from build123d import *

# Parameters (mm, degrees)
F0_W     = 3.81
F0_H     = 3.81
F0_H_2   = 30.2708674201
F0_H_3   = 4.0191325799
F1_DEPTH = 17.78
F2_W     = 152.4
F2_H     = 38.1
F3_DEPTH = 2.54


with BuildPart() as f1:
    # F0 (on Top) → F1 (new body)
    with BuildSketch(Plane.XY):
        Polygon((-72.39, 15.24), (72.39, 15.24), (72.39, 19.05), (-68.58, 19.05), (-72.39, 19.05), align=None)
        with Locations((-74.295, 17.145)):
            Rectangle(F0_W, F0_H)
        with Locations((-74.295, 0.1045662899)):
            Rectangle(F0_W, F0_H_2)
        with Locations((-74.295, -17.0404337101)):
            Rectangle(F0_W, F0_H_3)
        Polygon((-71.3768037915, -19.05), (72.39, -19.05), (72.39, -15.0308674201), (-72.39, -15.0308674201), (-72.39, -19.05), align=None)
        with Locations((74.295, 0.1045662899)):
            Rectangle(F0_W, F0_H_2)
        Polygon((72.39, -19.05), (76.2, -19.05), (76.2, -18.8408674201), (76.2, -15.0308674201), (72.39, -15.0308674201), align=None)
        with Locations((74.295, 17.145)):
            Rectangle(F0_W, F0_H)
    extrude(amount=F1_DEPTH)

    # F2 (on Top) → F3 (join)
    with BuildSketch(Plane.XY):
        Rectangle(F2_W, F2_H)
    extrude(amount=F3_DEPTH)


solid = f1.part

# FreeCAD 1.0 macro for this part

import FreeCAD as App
import Part
import Sketcher

V = App.Vector
Q = App.Units.Quantity


def add_polygon(sketch, points):
    """Adds a closed chain of lines whose ends are joined by coincident constraints."""
    first, n = sketch.GeometryCount, len(points)
    for a, b in zip(points, points[1:] + points[:1]):
        sketch.addGeometry(Part.LineSegment(App.Vector(*a, 0), App.Vector(*b, 0)), False)
    for i in range(n):
        sketch.addConstraint(Sketcher.Constraint("Coincident", first + i, 2, first + (i + 1) % n, 1))

doc = App.newDocument("Part")
params = doc.addObject("Spreadsheet::Sheet", "Params")
for row, (alias, value) in enumerate([
    ("sketch1_width", "6 in"),
    ("sketch1_width2", "5.7 in"),
    ("sketch1_height", "1.5 in"),
    ("pad1_length", "0.7 in"),
    ("sketch2_width", "6 in"),
    ("sketch2_height", "1.5 in"),
    ("pad2_length", "0.1 in"),
], start=1):
    params.set(f"A{row}", alias)
    params.set(f"B{row}", "=" + value)
    params.setAlias(f"B{row}", alias)

body = doc.addObject("PartDesign::Body", "Body")

sketch1 = body.newObject("Sketcher::SketchObject", "Sketch")
sketch1.AttachmentSupport = (doc.getObject("XY_Plane"), [""])
sketch1.MapMode = "FlatFace"
add_polygon(sketch1, [(76, -19), (76, 19), (-76, 19), (-76, -19)])
add_polygon(sketch1, [(-72, 15), (72, 15), (72, -15), (-72, -15)])
sketch1.addConstraint([
    Sketcher.Constraint("Vertical", 0),
    Sketcher.Constraint("Horizontal", 1),
    Sketcher.Constraint("Vertical", 2),
    Sketcher.Constraint("Horizontal", 3),
    Sketcher.Constraint("Horizontal", 4),
    Sketcher.Constraint("Vertical", 5),
    Sketcher.Constraint("Horizontal", 6),
    Sketcher.Constraint("Vertical", 7),
    Sketcher.Constraint("Symmetric", 0, 2, 2, 2, -1, 1),
    Sketcher.Constraint("DistanceX", 1, 2, 1, 1, Q("6 in")),
    Sketcher.Constraint("DistanceX", 4, 1, 4, 2, Q("5.7 in")),
    Sketcher.Constraint("DistanceY", 0, 1, 0, 2, Q("1.5 in")),
    Sketcher.Constraint("DistanceY", -1, 1, 4, 2, Q("0.6 in")),
    Sketcher.Constraint("DistanceX", -1, 1, 4, 2, Q("2.85 in")),
    Sketcher.Constraint("DistanceY", 5, 2, 5, 1, Q("30.270867 mm")),
])
sketch1.setExpression("Constraints[17]", "Params.sketch1_width")
sketch1.setExpression("Constraints[18]", "Params.sketch1_width2")
sketch1.setExpression("Constraints[19]", "Params.sketch1_height")
pad1 = body.newObject("PartDesign::Pad", "Pad")
pad1.Profile = sketch1
pad1.setExpression("Length", "Params.pad1_length")

sketch2 = body.newObject("Sketcher::SketchObject", "Sketch001")
sketch2.AttachmentSupport = (doc.getObject("XY_Plane"), [""])
sketch2.MapMode = "FlatFace"
add_polygon(sketch2, [(-76, 19), (-76, -19), (76, -19), (76, 19)])
sketch2.addConstraint([
    Sketcher.Constraint("Vertical", 0),
    Sketcher.Constraint("Horizontal", 1),
    Sketcher.Constraint("Vertical", 2),
    Sketcher.Constraint("Horizontal", 3),
    Sketcher.Constraint("Symmetric", 0, 2, 2, 2, -1, 1),
    Sketcher.Constraint("DistanceX", 1, 1, 1, 2, Q("6 in")),
    Sketcher.Constraint("DistanceY", 0, 2, 0, 1, Q("1.5 in")),
])
sketch2.setExpression("Constraints[9]", "Params.sketch2_width")
sketch2.setExpression("Constraints[10]", "Params.sketch2_height")
pad2 = body.newObject("PartDesign::Pad", "Pad001")
pad2.Profile = sketch2
pad2.setExpression("Length", "Params.pad2_length")

doc.recompute()
